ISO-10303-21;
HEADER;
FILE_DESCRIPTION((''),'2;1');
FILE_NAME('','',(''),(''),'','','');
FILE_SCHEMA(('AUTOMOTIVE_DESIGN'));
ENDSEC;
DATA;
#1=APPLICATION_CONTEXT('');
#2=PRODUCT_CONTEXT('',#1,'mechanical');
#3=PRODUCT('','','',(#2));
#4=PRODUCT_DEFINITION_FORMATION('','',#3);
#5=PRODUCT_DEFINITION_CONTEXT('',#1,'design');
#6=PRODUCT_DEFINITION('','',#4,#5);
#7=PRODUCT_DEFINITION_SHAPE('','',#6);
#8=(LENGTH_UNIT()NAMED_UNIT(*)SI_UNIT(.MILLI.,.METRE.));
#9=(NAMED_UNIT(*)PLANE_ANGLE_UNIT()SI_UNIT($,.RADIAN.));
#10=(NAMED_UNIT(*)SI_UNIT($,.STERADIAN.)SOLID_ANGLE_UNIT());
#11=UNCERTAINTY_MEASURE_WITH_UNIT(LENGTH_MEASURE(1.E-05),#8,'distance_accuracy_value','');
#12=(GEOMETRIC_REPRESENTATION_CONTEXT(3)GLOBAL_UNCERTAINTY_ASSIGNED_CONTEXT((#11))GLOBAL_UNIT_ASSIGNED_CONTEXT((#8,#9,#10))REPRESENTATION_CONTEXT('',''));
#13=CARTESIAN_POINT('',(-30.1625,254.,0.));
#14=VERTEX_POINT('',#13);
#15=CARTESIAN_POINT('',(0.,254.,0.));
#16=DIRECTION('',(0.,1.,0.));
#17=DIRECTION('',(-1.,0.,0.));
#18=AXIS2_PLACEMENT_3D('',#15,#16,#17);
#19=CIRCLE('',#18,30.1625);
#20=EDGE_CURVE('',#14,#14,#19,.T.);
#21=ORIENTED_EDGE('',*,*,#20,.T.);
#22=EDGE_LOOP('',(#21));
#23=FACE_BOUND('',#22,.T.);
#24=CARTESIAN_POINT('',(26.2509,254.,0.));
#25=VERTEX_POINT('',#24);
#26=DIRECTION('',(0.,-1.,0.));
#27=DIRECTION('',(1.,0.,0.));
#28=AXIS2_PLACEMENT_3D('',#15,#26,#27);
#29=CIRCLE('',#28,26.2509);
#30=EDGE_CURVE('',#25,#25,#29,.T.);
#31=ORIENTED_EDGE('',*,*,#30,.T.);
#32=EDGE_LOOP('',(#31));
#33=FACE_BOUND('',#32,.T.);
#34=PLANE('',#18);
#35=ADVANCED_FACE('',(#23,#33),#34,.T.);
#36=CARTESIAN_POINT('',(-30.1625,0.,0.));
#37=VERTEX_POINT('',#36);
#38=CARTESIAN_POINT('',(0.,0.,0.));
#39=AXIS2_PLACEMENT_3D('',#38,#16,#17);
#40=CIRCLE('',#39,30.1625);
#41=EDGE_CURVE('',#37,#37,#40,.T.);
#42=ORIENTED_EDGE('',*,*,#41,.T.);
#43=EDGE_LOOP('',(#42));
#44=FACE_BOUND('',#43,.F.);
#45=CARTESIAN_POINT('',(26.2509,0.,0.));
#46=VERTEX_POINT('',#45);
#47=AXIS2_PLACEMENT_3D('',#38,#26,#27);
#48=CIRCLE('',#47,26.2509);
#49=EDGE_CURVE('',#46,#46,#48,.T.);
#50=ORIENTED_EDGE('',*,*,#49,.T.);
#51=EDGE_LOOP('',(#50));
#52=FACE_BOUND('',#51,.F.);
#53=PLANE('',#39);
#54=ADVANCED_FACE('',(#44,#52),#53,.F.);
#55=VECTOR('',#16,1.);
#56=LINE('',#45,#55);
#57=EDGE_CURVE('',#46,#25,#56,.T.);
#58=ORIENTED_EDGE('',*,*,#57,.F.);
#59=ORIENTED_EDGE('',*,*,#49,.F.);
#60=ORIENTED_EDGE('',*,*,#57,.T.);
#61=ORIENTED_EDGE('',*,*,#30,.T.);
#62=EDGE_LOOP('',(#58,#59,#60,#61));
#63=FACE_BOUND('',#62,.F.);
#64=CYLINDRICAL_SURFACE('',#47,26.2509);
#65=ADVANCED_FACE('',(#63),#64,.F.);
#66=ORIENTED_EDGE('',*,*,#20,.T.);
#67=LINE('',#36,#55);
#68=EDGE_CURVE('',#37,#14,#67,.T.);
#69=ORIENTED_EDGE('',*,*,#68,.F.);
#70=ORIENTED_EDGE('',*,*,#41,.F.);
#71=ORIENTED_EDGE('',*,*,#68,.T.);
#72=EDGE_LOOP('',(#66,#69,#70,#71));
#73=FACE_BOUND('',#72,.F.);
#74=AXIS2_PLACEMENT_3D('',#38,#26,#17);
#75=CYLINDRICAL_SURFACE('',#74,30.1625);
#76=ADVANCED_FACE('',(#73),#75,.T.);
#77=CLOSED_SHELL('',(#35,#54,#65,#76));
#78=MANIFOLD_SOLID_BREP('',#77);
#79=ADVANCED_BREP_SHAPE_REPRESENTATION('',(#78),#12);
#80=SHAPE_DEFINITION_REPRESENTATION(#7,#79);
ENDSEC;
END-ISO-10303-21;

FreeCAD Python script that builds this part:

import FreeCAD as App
import Part
import Sketcher
from FreeCAD import Vector
Q = App.Units.Quantity

doc = App.newDocument("Part")
body = doc.addObject("PartDesign::Body", "Body")

sketch1 = body.newObject("Sketcher::SketchObject", "Sketch")
sketch1.AttachmentSupport = (doc.getObject("XZ_Plane"), [""])
sketch1.MapMode = "FlatFace"
sketch1.addGeometry(Part.Circle(Vector(0, 0, 0), Vector(0, 0, 1), 30), False)
sketch1.addConstraint([
    Sketcher.Constraint("Coincident", 0, 3, -1, 1),
    Sketcher.Constraint("Diameter", 0, Q("2.375 in")),
])
pad1 = body.newObject("PartDesign::Pad", "Pad")
pad1.Profile = sketch1
pad1.Length = Q("10 in")
pad1.Reversed = True

sketch2 = body.newObject("Sketcher::SketchObject", "Sketch001")
sketch2.AttachmentSupport = (doc.getObject("XZ_Plane"), [""])
sketch2.MapMode = "FlatFace"
sketch2.addGeometry(Part.Circle(Vector(0, 0, 0), Vector(0, 0, 1), 26), False)
sketch2.addConstraint([
    Sketcher.Constraint("Coincident", 0, 3, -1, 1),
    Sketcher.Constraint("Diameter", 0, Q("2.067 in")),
])
pocket1 = body.newObject("PartDesign::Pocket", "Pocket")
pocket1.Profile = sketch2
pocket1.Length = Q("10 in")

doc.recompute()
